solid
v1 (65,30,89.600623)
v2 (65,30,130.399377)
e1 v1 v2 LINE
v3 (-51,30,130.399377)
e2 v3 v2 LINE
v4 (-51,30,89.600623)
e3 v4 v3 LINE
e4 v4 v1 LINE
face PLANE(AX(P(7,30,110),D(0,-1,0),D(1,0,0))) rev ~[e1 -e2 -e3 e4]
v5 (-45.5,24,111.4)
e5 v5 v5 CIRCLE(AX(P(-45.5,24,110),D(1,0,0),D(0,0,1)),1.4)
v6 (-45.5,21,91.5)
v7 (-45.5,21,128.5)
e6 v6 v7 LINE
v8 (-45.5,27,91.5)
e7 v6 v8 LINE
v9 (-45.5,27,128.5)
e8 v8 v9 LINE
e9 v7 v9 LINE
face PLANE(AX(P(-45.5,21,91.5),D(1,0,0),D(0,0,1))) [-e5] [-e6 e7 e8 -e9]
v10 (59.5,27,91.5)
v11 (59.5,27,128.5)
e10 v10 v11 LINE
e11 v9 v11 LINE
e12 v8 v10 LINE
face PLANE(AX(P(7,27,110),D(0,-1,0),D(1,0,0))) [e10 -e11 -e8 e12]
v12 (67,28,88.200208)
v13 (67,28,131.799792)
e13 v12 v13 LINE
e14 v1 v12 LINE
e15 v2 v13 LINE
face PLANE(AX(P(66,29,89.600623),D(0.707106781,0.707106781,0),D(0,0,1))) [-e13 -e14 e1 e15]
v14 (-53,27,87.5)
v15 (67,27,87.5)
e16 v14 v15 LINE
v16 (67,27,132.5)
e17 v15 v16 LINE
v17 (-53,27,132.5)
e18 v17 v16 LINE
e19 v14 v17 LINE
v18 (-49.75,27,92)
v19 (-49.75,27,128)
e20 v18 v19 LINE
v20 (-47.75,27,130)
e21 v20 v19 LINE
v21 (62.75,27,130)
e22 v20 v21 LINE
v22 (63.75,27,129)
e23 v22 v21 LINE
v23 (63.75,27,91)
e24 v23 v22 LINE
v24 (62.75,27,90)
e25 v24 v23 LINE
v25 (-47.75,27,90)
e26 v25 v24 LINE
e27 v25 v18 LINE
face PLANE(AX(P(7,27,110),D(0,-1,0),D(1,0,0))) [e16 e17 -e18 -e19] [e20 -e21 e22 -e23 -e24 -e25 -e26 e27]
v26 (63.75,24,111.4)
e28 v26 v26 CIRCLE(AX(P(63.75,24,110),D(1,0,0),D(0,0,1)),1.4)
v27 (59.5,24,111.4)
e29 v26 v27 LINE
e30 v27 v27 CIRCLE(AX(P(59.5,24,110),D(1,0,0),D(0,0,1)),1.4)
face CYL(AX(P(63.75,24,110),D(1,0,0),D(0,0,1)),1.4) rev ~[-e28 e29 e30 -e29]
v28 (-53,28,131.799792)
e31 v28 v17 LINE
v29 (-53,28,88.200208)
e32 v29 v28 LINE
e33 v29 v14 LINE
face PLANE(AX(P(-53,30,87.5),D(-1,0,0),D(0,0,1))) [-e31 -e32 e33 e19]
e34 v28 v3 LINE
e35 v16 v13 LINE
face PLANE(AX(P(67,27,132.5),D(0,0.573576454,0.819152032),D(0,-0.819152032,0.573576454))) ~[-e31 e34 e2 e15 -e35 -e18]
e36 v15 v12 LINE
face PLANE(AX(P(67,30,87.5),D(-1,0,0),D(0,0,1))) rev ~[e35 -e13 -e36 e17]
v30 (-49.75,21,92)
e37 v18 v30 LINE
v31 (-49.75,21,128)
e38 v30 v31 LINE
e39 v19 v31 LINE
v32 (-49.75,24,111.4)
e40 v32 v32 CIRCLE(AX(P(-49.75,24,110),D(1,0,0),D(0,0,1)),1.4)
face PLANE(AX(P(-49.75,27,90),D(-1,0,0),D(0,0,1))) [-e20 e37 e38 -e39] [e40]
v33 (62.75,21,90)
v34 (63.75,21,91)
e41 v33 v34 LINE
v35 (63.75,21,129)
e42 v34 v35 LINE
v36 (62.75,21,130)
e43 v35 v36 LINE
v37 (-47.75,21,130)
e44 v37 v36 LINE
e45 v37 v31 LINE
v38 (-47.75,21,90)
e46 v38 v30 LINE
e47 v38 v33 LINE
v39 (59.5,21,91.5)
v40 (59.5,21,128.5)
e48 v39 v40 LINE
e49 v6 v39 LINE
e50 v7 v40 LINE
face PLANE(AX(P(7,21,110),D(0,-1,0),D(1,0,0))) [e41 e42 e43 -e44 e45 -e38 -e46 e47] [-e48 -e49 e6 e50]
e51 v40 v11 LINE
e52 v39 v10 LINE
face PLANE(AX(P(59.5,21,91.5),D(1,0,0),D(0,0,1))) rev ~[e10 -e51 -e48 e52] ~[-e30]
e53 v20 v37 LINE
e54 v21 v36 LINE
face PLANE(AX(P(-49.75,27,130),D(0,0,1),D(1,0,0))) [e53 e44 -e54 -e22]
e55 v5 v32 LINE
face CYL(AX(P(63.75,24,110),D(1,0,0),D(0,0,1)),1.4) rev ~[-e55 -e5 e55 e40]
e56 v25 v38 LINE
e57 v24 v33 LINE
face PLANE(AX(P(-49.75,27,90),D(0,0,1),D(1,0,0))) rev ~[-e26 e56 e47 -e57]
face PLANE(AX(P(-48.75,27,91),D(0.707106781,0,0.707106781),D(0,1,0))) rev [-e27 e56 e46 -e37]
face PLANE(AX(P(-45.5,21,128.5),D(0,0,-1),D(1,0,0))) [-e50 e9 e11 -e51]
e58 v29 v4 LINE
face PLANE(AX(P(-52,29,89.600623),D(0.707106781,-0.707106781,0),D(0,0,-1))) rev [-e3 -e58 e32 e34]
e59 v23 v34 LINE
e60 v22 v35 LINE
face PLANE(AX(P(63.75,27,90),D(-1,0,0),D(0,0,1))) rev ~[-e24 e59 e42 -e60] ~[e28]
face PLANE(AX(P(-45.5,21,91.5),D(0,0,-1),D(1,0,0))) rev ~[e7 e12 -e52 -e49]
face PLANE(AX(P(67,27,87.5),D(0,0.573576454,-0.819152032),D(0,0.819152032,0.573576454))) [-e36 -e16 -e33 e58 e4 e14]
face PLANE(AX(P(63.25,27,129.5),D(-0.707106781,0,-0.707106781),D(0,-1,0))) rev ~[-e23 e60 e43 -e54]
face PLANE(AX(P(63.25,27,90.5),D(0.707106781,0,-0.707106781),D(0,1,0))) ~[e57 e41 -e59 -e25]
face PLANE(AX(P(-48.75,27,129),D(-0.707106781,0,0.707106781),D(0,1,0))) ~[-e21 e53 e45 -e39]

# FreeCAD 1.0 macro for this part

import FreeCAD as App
import Part
import Sketcher

V = App.Vector
Q = App.Units.Quantity


def edges_at(feature, points):
    """Names of the edges that pass closest to the given points."""
    edges = feature.Shape.Edges
    near = lambda p: min(range(len(edges)), key=lambda i: edges[i].distToShape(Part.Vertex(*p))[0])
    return sorted({f"Edge{near(p) + 1}" for p in points})


def add_polygon(sketch, points):
    """Adds a closed chain of lines whose ends are joined by coincident constraints."""
    first, n = sketch.GeometryCount, len(points)
    for a, b in zip(points, points[1:] + points[:1]):
        sketch.addGeometry(Part.LineSegment(App.Vector(*a, 0), App.Vector(*b, 0)), False)
    for i in range(n):
        sketch.addConstraint(Sketcher.Constraint("Coincident", first + i, 2, first + (i + 1) % n, 1))

doc = App.newDocument("Part")
params = doc.addObject("Spreadsheet::Sheet", "Params")
for row, (alias, value) in enumerate([
    ("sketch1_width", "120 mm"),
    ("sketch1_height", "45 mm"),
    ("pad1_length", "3 mm"),
    ("sketch2_height", "40 mm"),
    ("sketch2_width", "113.5 mm"),
    ("pad2_length", "6 mm"),
    ("sketch3_diameter", "2.8 mm"),
    ("chamfer_size", "2 mm"),
    ("sketch5_width", "105 mm"),
    ("sketch5_height", "37 mm"),
    ("pocket3_length", "6 mm"),
    ("chamfer2_size", "2 mm"),
    ("chamfer3_size", "1 mm"),
    ("chamfer4_size", "1 mm"),
    ("chamfer5_size", "2 mm"),
], start=1):
    params.set(f"A{row}", alias)
    params.set(f"B{row}", "=" + value)
    params.setAlias(f"B{row}", alias)

body = doc.addObject("PartDesign::Body", "Body")

sketch1 = doc.addObject("Sketcher::SketchObject", "Sketch")
body.addObject(sketch1)
sketch1.AttachmentSupport = (doc.XZ_Plane, [""])
sketch1.MapMode = "FlatFace"
add_polygon(sketch1, [(-60, 22.5), (-60, -22.5), (60, -22.5), (60, 22.5)])
sketch1.addConstraint([
    Sketcher.Constraint("Vertical", 0),
    Sketcher.Constraint("Horizontal", 1),
    Sketcher.Constraint("Vertical", 2),
    Sketcher.Constraint("Horizontal", 3),
    Sketcher.Constraint("Symmetric", 0, 2, 2, 2, -1, 1),
    Sketcher.Constraint("DistanceX", 1, 1, 1, 2, 120.0),
    Sketcher.Constraint("DistanceY", 0, 2, 0, 1, 45.0),
])
sketch1.setExpression("Constraints[9]", "Params.sketch1_width")
sketch1.setExpression("Constraints[10]", "Params.sketch1_height")
pad1 = doc.addObject("PartDesign::Pad", "Pad")
body.addObject(pad1)
pad1.Profile = sketch1
pad1.setExpression("Length", "Params.pad1_length")

sketch2 = doc.addObject("Sketcher::SketchObject", "Sketch001")
body.addObject(sketch2)
sketch2.AttachmentSupport = (doc.XZ_Plane, [""])
sketch2.MapMode = "FlatFace"
sketch2.AttachmentOffset = App.Placement(V(0, 0, 3), App.Rotation())
add_polygon(sketch2, [(-56.75, 20), (-56.75, -20), (56.75, -20), (56.75, 20)])
sketch2.addConstraint([
    Sketcher.Constraint("Vertical", 0),
    Sketcher.Constraint("Horizontal", 1),
    Sketcher.Constraint("Vertical", 2),
    Sketcher.Constraint("Horizontal", 3),
    Sketcher.Constraint("Symmetric", 0, 2, 2, 2, -1, 1),
    Sketcher.Constraint("DistanceY", 0, 2, 0, 1, 40.0),
    Sketcher.Constraint("DistanceX", 1, 1, 1, 2, 113.5),
])
sketch2.setExpression("Constraints[9]", "Params.sketch2_height")
sketch2.setExpression("Constraints[10]", "Params.sketch2_width")
pad2 = doc.addObject("PartDesign::Pad", "Pad001")
body.addObject(pad2)
pad2.Profile = sketch2
pad2.setExpression("Length", "Params.pad2_length")

sketch3 = doc.addObject("Sketcher::SketchObject", "Sketch002")
body.addObject(sketch3)
sketch3.AttachmentSupport = (doc.YZ_Plane, [""])
sketch3.MapMode = "FlatFace"
sketch3.AttachmentOffset = App.Placement(V(0, 0, 56.75), App.Rotation())
sketch3.addGeometry(Part.Circle(V(-6, 0, 0), V(0, 0, 1), 1.4), False)
sketch3.addConstraint([
    Sketcher.Constraint("PointOnObject", 0, 3, -1),
    Sketcher.Constraint("Diameter", 0, 2.8),
    Sketcher.Constraint("DistanceX", 0, 3, -1, 1, 6.0),
])
sketch3.setExpression("Constraints[1]", "Params.sketch3_diameter")
pocket1 = doc.addObject("PartDesign::Pocket", "Pocket")
body.addObject(pocket1)
pocket1.Profile = sketch3
pocket1.Type = "ThroughAll"

sketch4 = doc.addObject("Sketcher::SketchObject", "Sketch003")
body.addObject(sketch4)
sketch4.AttachmentSupport = (doc.YZ_Plane, [""])
sketch4.MapMode = "FlatFace"
sketch4.AttachmentOffset = App.Placement(V(0, 0, 60), App.Rotation())
add_polygon(sketch4, [(3.604533, -17.875456), (-3, -22.5), (3.604533, -35.516254)])
sketch4.addConstraint([
    Sketcher.Constraint("Vertical", 2),
    Sketcher.Constraint("Angle", 0, Q("-144.999999 deg")),
    Sketcher.Constraint("DistanceX", 0, 2, -1, 1, 3.0),
    Sketcher.Constraint("DistanceY", 0, 2, -1, 1, 22.5),
    Sketcher.Constraint("DistanceY", 2, 1, 2, 2, 17.640798),
    Sketcher.Constraint("Distance", 0, 8.062646),
])
pocket2 = doc.addObject("PartDesign::Pocket", "Pocket001")
body.addObject(pocket2)
pocket2.Profile = sketch4
pocket2.Type = "ThroughAll"
doc.recompute()

mirrored = doc.addObject("PartDesign::Mirrored", "Mirrored")
body.addObject(mirrored)
mirrored.Originals = [pocket2]
mirrored.MirrorPlane = (doc.XY_Plane, [""])
body.Tip = mirrored
doc.recompute()

chamfer = doc.addObject("PartDesign::Chamfer", "Chamfer")
body.addObject(chamfer)
chamfer.Base = (mirrored, edges_at(mirrored, [(60, 0, 0), (-60, 0, 0)]))
chamfer.setExpression("Size", "Params.chamfer_size")

sketch5 = doc.addObject("Sketcher::SketchObject", "Sketch004")
body.addObject(sketch5)
sketch5.AttachmentSupport = (doc.XZ_Plane, [""])
sketch5.MapMode = "FlatFace"
sketch5.AttachmentOffset = App.Placement(V(0, 0, 9), App.Rotation())
add_polygon(sketch5, [(-52.5, 18.5), (-52.5, -18.5), (52.5, -18.5), (52.5, 18.5)])
sketch5.addConstraint([
    Sketcher.Constraint("Vertical", 0),
    Sketcher.Constraint("Horizontal", 1),
    Sketcher.Constraint("Vertical", 2),
    Sketcher.Constraint("Horizontal", 3),
    Sketcher.Constraint("Symmetric", 0, 2, 2, 2, -1, 1),
    Sketcher.Constraint("DistanceX", 1, 1, 1, 2, 105.0),
    Sketcher.Constraint("DistanceY", 0, 2, 0, 1, 37.0),
])
sketch5.setExpression("Constraints[9]", "Params.sketch5_width")
sketch5.setExpression("Constraints[10]", "Params.sketch5_height")
pocket3 = doc.addObject("PartDesign::Pocket", "Pocket002")
body.addObject(pocket3)
pocket3.Profile = sketch5
pocket3.setExpression("Length", "Params.pocket3_length")
doc.recompute()

chamfer2 = doc.addObject("PartDesign::Chamfer", "Chamfer001")
body.addObject(chamfer2)
chamfer2.Base = (pocket3, edges_at(pocket3, [(-56.75, -6, -20)]))
chamfer2.setExpression("Size", "Params.chamfer2_size")
doc.recompute()

chamfer3 = doc.addObject("PartDesign::Chamfer", "Chamfer002")
body.addObject(chamfer3)
chamfer3.Base = (chamfer2, edges_at(chamfer2, [(56.75, -6, -20)]))
chamfer3.setExpression("Size", "Params.chamfer3_size")
doc.recompute()

chamfer4 = doc.addObject("PartDesign::Chamfer", "Chamfer003")
body.addObject(chamfer4)
chamfer4.Base = (chamfer3, edges_at(chamfer3, [(56.75, -6, 20)]))
chamfer4.setExpression("Size", "Params.chamfer4_size")
doc.recompute()

chamfer5 = doc.addObject("PartDesign::Chamfer", "Chamfer004")
body.addObject(chamfer5)
chamfer5.Base = (chamfer4, edges_at(chamfer4, [(-56.75, -6, 20)]))
chamfer5.setExpression("Size", "Params.chamfer5_size")
body2 = doc.addObject("PartDesign::Body", "Body001")
doc.recompute()

body.Placement = App.Placement(V(7, 30, 110), App.Rotation(V(0, 0, 1), 0))
boolean = doc.addObject("PartDesign::Boolean", "Boolean")
body2.addObject(boolean)
boolean.Type = "Fuse"
boolean.addObjects([body])

doc.recompute()
